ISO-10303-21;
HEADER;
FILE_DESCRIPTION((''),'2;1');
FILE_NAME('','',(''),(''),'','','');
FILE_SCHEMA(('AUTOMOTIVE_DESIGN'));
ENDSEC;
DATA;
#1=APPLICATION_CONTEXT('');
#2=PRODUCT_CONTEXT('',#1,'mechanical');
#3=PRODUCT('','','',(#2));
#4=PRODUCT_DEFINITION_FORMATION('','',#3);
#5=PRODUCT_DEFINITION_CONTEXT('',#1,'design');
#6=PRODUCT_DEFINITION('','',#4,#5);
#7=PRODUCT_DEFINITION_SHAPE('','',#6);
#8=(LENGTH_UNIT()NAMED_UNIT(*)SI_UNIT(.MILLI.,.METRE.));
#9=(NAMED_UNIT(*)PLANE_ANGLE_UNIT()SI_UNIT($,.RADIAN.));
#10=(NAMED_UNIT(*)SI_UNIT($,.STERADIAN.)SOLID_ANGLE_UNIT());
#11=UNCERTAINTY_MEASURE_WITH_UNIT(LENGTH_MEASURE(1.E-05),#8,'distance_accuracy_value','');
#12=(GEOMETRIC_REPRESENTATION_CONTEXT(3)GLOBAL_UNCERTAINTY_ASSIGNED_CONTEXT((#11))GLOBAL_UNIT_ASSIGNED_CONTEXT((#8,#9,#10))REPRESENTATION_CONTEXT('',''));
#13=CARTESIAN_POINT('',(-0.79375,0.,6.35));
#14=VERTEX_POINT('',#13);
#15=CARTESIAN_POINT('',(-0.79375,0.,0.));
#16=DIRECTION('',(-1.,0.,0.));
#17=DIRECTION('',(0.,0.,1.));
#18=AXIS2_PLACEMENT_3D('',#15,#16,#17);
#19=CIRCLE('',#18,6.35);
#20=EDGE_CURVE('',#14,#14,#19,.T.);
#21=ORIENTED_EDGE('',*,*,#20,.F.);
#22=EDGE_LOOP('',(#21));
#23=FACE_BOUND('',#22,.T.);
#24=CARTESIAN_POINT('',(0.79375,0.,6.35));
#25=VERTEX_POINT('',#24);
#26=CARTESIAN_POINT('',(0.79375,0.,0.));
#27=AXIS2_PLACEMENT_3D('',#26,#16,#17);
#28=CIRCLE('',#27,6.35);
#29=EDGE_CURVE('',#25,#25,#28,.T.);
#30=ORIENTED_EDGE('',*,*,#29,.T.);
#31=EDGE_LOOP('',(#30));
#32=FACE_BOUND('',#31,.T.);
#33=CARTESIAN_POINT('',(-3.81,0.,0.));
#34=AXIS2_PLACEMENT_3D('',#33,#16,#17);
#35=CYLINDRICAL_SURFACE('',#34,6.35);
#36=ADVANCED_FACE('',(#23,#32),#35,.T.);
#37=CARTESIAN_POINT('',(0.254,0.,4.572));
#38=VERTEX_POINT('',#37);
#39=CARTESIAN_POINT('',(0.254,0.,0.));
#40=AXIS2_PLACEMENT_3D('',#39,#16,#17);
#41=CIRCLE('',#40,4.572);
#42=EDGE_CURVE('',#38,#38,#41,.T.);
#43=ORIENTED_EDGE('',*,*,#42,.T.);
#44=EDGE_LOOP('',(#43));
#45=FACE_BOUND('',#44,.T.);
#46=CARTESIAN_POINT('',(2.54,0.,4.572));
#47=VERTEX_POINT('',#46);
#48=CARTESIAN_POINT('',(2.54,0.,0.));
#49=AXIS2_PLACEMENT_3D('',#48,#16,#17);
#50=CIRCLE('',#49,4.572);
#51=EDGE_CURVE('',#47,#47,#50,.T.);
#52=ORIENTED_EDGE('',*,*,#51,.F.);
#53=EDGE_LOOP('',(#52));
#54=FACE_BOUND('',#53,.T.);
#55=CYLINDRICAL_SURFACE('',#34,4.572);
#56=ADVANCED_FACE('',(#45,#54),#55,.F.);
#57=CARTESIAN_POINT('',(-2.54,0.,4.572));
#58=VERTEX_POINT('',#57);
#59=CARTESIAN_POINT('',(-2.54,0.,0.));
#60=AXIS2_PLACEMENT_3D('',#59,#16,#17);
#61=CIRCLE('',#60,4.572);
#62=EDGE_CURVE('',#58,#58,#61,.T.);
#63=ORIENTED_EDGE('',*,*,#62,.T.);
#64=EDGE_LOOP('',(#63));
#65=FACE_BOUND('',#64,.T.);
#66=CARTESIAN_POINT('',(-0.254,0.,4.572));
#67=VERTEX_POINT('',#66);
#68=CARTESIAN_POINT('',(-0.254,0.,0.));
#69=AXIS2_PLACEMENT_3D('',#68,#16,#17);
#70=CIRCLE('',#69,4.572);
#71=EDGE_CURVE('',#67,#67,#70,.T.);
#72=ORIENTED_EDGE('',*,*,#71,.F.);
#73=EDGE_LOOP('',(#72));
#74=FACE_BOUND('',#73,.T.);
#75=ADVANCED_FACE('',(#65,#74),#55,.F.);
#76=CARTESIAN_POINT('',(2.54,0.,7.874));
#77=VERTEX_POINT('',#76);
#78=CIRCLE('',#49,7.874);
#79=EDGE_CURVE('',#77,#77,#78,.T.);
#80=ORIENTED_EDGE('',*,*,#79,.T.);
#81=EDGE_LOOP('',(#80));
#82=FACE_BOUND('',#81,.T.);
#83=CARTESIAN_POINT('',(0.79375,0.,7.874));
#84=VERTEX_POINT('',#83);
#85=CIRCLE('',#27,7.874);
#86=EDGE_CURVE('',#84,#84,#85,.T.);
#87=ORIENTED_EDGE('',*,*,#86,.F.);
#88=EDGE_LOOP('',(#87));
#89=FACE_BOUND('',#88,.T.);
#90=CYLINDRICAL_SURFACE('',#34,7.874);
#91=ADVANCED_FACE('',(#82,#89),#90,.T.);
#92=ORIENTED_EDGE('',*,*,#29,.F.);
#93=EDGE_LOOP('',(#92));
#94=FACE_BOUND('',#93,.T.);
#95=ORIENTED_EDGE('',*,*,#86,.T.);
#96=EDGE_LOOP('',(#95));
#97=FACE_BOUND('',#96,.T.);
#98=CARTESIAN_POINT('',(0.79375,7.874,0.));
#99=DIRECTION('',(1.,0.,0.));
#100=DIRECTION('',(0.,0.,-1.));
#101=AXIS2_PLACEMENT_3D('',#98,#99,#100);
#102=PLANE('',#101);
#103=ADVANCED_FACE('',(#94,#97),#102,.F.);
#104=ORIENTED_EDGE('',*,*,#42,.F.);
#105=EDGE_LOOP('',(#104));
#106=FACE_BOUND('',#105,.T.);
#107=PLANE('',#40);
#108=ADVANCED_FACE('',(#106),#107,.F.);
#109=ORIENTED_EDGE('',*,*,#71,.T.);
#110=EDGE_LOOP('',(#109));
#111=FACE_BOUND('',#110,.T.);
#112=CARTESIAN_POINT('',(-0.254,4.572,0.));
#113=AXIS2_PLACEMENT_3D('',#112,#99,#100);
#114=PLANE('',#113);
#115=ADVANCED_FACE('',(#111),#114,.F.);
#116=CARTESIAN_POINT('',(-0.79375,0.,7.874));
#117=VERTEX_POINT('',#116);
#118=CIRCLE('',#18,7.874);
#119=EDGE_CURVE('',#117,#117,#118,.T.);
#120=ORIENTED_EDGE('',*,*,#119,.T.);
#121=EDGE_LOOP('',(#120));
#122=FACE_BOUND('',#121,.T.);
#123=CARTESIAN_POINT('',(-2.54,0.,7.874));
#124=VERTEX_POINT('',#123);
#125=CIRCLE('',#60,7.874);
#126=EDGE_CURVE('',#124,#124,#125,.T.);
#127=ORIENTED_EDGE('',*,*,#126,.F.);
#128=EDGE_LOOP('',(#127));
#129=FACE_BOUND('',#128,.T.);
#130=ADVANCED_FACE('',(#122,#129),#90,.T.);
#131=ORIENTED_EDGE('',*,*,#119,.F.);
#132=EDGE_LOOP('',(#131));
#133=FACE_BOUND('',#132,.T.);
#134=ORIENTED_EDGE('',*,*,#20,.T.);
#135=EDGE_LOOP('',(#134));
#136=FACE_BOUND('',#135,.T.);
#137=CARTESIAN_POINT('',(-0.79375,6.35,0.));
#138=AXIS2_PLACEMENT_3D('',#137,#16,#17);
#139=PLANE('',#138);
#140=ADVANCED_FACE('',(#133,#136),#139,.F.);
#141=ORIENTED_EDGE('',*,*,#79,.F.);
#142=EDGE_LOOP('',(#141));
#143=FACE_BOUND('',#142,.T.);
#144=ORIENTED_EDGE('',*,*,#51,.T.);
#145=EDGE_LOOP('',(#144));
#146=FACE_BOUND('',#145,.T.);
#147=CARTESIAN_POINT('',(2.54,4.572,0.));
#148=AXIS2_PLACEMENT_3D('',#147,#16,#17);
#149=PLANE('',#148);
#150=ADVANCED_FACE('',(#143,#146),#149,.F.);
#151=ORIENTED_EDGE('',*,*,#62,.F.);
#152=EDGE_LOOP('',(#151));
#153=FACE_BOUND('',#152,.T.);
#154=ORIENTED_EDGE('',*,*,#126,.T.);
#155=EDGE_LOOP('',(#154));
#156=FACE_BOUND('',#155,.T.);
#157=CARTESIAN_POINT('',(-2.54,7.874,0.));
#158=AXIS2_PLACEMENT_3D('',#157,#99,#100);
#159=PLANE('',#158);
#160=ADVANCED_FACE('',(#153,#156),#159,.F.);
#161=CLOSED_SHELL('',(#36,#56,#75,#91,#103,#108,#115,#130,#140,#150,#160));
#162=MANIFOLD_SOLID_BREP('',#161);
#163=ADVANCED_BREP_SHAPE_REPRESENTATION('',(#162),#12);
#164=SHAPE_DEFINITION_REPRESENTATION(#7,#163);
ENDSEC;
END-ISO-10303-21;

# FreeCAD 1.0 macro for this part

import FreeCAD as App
import Part
import Sketcher
Q = App.Units.Quantity

doc = App.newDocument("Part")
params = doc.addObject("Spreadsheet::Sheet", "Params")
for row, (alias, value) in enumerate([
    ("sketch1_width", "0.02 in"),
    ("sketch1_width2", "0.09 in"),
    ("sketch1_height", "0.18 in"),
    ("sketch1_height2", "0.13 in"),
    ("sketch1_height3", "0.06 in"),
    ("revolution_angle", "360 deg"),
], start=1):
    params.set(f"A{row}", alias)
    params.set(f"B{row}", "=" + value)
    params.setAlias(f"B{row}", alias)

body = doc.addObject("PartDesign::Body", "Body")

sketch1 = doc.addObject("Sketcher::SketchObject", "Sketch")
body.addObject(sketch1)
sketch1.AttachmentSupport = (doc.XY_Plane, [""])
sketch1.MapMode = "FlatFace"
sketch1.addGeometry(Part.LineSegment(App.Vector(-0.3, 0, 0), App.Vector(0.3, 0, 0)), False)
sketch1.addGeometry(Part.LineSegment(App.Vector(0.3, 0, 0), App.Vector(0.3, 4.6, 0)), False)
sketch1.addGeometry(Part.LineSegment(App.Vector(0.3, 4.6, 0), App.Vector(2.5, 4.6, 0)), False)
sketch1.addGeometry(Part.LineSegment(App.Vector(2.5, 4.6, 0), App.Vector(2.5, 7.9, 0)), False)
sketch1.addGeometry(Part.LineSegment(App.Vector(2.5, 7.9, 0), App.Vector(0.8, 7.9, 0)), False)
sketch1.addGeometry(Part.LineSegment(App.Vector(0.8, 7.9, 0), App.Vector(0.8, 6.3, 0)), False)
sketch1.addGeometry(Part.LineSegment(App.Vector(0.8, 6.3, 0), App.Vector(-0.8, 6.3, 0)), False)
sketch1.addGeometry(Part.LineSegment(App.Vector(-0.8, 6.3, 0), App.Vector(-0.8, 7.9, 0)), False)
sketch1.addGeometry(Part.LineSegment(App.Vector(-0.8, 7.9, 0), App.Vector(-2.5, 7.9, 0)), False)
sketch1.addGeometry(Part.LineSegment(App.Vector(-2.5, 7.9, 0), App.Vector(-2.5, 4.6, 0)), False)
sketch1.addGeometry(Part.LineSegment(App.Vector(-2.5, 4.6, 0), App.Vector(-0.3, 4.6, 0)), False)
sketch1.addGeometry(Part.LineSegment(App.Vector(-0.3, 4.6, 0), App.Vector(-0.3, 0, 0)), False)
sketch1.addConstraint(Sketcher.Constraint("Coincident", 0, 2, 1, 1))
sketch1.addConstraint(Sketcher.Constraint("Coincident", 1, 2, 2, 1))
sketch1.addConstraint(Sketcher.Constraint("Coincident", 2, 2, 3, 1))
sketch1.addConstraint(Sketcher.Constraint("Coincident", 3, 2, 4, 1))
sketch1.addConstraint(Sketcher.Constraint("Coincident", 4, 2, 5, 1))
sketch1.addConstraint(Sketcher.Constraint("Coincident", 5, 2, 6, 1))
sketch1.addConstraint(Sketcher.Constraint("Coincident", 6, 2, 7, 1))
sketch1.addConstraint(Sketcher.Constraint("Coincident", 7, 2, 8, 1))
sketch1.addConstraint(Sketcher.Constraint("Coincident", 8, 2, 9, 1))
sketch1.addConstraint(Sketcher.Constraint("Coincident", 9, 2, 10, 1))
sketch1.addConstraint(Sketcher.Constraint("Coincident", 10, 2, 11, 1))
sketch1.addConstraint(Sketcher.Constraint("Coincident", 11, 2, 0, 1))
sketch1.addConstraint(Sketcher.Constraint("Horizontal", 0))
sketch1.addConstraint(Sketcher.Constraint("Vertical", 1))
sketch1.addConstraint(Sketcher.Constraint("Horizontal", 2))
sketch1.addConstraint(Sketcher.Constraint("Vertical", 3))
sketch1.addConstraint(Sketcher.Constraint("Horizontal", 4))
sketch1.addConstraint(Sketcher.Constraint("Vertical", 5))
sketch1.addConstraint(Sketcher.Constraint("Horizontal", 6))
sketch1.addConstraint(Sketcher.Constraint("Vertical", 7))
sketch1.addConstraint(Sketcher.Constraint("Horizontal", 8))
sketch1.addConstraint(Sketcher.Constraint("Vertical", 9))
sketch1.addConstraint(Sketcher.Constraint("Horizontal", 10))
sketch1.addConstraint(Sketcher.Constraint("Vertical", 11))
sketch1.addConstraint(Sketcher.Constraint("Symmetric", 0, 2, 11, 2, -1, 1))
sketch1.addConstraint(Sketcher.Constraint("Symmetric", 4, 2, 7, 2, -2))
sketch1.addConstraint(Sketcher.Constraint("Symmetric", 2, 2, 9, 2, -2))
sketch1.addConstraint(Sketcher.Constraint("DistanceX", 0, 1, 0, 2, Q("0.02 in")))
sketch1.addConstraint(Sketcher.Constraint("DistanceX", 2, 1, 2, 2, Q("0.09 in")))
sketch1.addConstraint(Sketcher.Constraint("DistanceY", 1, 1, 1, 2, Q("0.18 in")))
sketch1.addConstraint(Sketcher.Constraint("DistanceY", 3, 1, 3, 2, Q("0.13 in")))
sketch1.addConstraint(Sketcher.Constraint("DistanceY", 5, 2, 5, 1, Q("0.06 in")))
sketch1.addConstraint(Sketcher.Constraint("DistanceX", 6, 2, 6, 1, Q("0.0625 in")))
sketch1.setExpression("Constraints[27]", "Params.sketch1_width")
sketch1.setExpression("Constraints[28]", "Params.sketch1_width2")
sketch1.setExpression("Constraints[29]", "Params.sketch1_height")
sketch1.setExpression("Constraints[30]", "Params.sketch1_height2")
sketch1.setExpression("Constraints[31]", "Params.sketch1_height3")
revolution = doc.addObject("PartDesign::Revolution", "Revolution")
body.addObject(revolution)
revolution.Profile = sketch1
revolution.ReferenceAxis = (sketch1, ["H_Axis"])
revolution.setExpression("Angle", "Params.revolution_angle")

doc.recompute()
